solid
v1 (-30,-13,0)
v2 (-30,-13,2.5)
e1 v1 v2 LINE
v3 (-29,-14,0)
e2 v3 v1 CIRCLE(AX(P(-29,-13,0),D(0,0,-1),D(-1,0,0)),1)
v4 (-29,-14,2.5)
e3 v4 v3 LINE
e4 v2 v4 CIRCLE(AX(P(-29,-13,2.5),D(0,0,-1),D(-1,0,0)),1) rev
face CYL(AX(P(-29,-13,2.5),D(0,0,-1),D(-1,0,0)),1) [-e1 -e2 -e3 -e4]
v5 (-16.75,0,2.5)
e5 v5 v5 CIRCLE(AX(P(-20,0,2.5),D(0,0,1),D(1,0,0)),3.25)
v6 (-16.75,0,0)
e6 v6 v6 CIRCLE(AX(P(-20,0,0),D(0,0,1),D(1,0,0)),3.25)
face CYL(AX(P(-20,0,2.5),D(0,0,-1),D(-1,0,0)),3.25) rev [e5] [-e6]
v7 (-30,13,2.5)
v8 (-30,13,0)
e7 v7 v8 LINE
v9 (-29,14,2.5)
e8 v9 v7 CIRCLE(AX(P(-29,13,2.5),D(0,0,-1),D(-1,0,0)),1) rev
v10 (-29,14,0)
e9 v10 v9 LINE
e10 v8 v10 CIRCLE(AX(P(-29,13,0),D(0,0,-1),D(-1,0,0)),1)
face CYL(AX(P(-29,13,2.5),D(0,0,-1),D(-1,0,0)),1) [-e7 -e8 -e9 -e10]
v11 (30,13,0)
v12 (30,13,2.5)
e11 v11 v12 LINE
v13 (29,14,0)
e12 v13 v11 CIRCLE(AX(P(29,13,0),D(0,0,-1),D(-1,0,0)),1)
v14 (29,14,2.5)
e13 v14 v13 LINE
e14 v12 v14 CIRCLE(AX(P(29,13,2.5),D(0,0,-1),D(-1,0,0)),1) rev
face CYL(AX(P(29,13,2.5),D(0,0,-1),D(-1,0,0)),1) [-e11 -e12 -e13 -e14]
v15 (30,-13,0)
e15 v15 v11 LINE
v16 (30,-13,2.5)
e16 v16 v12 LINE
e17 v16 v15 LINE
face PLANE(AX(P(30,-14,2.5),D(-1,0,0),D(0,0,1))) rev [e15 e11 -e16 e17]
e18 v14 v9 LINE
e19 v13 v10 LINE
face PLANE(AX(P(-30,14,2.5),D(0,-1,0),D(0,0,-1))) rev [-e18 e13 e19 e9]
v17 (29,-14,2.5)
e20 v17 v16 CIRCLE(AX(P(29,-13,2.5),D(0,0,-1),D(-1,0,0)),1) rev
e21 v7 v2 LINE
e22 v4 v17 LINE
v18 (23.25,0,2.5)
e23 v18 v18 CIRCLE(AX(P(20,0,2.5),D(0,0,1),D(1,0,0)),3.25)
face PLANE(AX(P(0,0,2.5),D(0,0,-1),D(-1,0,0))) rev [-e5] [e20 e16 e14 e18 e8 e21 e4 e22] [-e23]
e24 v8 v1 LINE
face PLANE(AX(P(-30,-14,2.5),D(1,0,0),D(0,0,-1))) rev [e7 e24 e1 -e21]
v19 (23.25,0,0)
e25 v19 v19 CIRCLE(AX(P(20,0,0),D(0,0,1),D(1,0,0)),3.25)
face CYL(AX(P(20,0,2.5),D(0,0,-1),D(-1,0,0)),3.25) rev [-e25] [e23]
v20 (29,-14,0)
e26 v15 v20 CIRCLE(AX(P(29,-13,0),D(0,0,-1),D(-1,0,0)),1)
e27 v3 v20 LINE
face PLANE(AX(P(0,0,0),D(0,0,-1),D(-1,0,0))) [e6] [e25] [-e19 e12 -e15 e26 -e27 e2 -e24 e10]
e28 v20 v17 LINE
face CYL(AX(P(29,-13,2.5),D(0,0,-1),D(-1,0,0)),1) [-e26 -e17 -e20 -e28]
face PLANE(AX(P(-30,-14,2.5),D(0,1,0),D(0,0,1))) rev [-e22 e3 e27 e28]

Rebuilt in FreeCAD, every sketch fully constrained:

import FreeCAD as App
import Part
import Sketcher
from FreeCAD import Vector
Q = App.Units.Quantity


def edges_at(feature, points):
    """Names of the edges that pass closest to the given points."""
    edges = feature.Shape.Edges
    near = lambda p: min(range(len(edges)), key=lambda i: edges[i].distToShape(Part.Vertex(*p))[0])
    return sorted({f"Edge{near(p) + 1}" for p in points})

doc = App.newDocument("Part")
params = doc.addObject("Spreadsheet::Sheet", "Params")
for row, (alias, value) in enumerate([
    ("sketch1_diameter", "6.5 mm"),
    ("sketch1_width", "60 mm"),
    ("sketch1_height", "28 mm"),
    ("pad1_length", "2.5 mm"),
    ("fillet_radius", "1 mm"),
], start=1):
    params.set(f"A{row}", alias)
    params.set(f"B{row}", "=" + value)
    params.setAlias(f"B{row}", alias)

body = doc.addObject("PartDesign::Body", "Body")

# Sketch on XY plane
sketch1 = body.newObject("Sketcher::SketchObject", "Sketch")
sketch1.AttachmentSupport = (doc.getObject("XY_Plane"), [""])
sketch1.MapMode = "FlatFace"
sketch1.addGeometry(Part.LineSegment(Vector(-30, 14, 0), Vector(-30, -14, 0)), False)
sketch1.addGeometry(Part.LineSegment(Vector(-30, -14, 0), Vector(30, -14, 0)), False)
sketch1.addGeometry(Part.LineSegment(Vector(30, -14, 0), Vector(30, 14, 0)), False)
sketch1.addGeometry(Part.LineSegment(Vector(30, 14, 0), Vector(-30, 14, 0)), False)
sketch1.addGeometry(Part.Circle(Vector(-20, 0, 0), Vector(0, 0, 1), 3.2), False)
sketch1.addGeometry(Part.Circle(Vector(20, 0, 0), Vector(0, 0, 1), 3.2), False)
sketch1.addConstraint(Sketcher.Constraint("Coincident", 0, 2, 1, 1))
sketch1.addConstraint(Sketcher.Constraint("Coincident", 1, 2, 2, 1))
sketch1.addConstraint(Sketcher.Constraint("Coincident", 2, 2, 3, 1))
sketch1.addConstraint(Sketcher.Constraint("Coincident", 3, 2, 0, 1))
sketch1.addConstraint(Sketcher.Constraint("Vertical", 0))
sketch1.addConstraint(Sketcher.Constraint("Horizontal", 1))
sketch1.addConstraint(Sketcher.Constraint("Vertical", 2))
sketch1.addConstraint(Sketcher.Constraint("Horizontal", 3))
sketch1.addConstraint(Sketcher.Constraint("Equal", 4, 5))
sketch1.addConstraint(Sketcher.Constraint("Symmetric", 4, 3, 5, 3, -1, 1))
sketch1.addConstraint(Sketcher.Constraint("Symmetric", 0, 2, 2, 2, -1, 1))
sketch1.addConstraint(Sketcher.Constraint("PointOnObject", 4, 3, -1))
sketch1.addConstraint(Sketcher.Constraint("Diameter", 4, Q("6.5 mm")))
sketch1.addConstraint(Sketcher.Constraint("DistanceX", 1, 1, 1, 2, Q("60 mm")))
sketch1.addConstraint(Sketcher.Constraint("DistanceY", 0, 2, 0, 1, Q("28 mm")))
sketch1.addConstraint(Sketcher.Constraint("DistanceX", 4, 3, -1, 1, Q("20 mm")))
sketch1.setExpression("Constraints[12]", "Params.sketch1_diameter")
sketch1.setExpression("Constraints[13]", "Params.sketch1_width")
sketch1.setExpression("Constraints[14]", "Params.sketch1_height")
pad1 = body.newObject("PartDesign::Pad", "Pad")
pad1.Profile = sketch1
pad1.setExpression("Length", "Params.pad1_length")
doc.recompute()

fillet = body.newObject("PartDesign::Fillet", "Fillet")
fillet.Base = (pad1, edges_at(pad1, [
    (30, -14, 1.25),
    (-30, -14, 1.25),
    (-30, 14, 1.25),
    (30, 14, 1.25),
]))
fillet.setExpression("Radius", "Params.fillet_radius")

doc.recompute()
